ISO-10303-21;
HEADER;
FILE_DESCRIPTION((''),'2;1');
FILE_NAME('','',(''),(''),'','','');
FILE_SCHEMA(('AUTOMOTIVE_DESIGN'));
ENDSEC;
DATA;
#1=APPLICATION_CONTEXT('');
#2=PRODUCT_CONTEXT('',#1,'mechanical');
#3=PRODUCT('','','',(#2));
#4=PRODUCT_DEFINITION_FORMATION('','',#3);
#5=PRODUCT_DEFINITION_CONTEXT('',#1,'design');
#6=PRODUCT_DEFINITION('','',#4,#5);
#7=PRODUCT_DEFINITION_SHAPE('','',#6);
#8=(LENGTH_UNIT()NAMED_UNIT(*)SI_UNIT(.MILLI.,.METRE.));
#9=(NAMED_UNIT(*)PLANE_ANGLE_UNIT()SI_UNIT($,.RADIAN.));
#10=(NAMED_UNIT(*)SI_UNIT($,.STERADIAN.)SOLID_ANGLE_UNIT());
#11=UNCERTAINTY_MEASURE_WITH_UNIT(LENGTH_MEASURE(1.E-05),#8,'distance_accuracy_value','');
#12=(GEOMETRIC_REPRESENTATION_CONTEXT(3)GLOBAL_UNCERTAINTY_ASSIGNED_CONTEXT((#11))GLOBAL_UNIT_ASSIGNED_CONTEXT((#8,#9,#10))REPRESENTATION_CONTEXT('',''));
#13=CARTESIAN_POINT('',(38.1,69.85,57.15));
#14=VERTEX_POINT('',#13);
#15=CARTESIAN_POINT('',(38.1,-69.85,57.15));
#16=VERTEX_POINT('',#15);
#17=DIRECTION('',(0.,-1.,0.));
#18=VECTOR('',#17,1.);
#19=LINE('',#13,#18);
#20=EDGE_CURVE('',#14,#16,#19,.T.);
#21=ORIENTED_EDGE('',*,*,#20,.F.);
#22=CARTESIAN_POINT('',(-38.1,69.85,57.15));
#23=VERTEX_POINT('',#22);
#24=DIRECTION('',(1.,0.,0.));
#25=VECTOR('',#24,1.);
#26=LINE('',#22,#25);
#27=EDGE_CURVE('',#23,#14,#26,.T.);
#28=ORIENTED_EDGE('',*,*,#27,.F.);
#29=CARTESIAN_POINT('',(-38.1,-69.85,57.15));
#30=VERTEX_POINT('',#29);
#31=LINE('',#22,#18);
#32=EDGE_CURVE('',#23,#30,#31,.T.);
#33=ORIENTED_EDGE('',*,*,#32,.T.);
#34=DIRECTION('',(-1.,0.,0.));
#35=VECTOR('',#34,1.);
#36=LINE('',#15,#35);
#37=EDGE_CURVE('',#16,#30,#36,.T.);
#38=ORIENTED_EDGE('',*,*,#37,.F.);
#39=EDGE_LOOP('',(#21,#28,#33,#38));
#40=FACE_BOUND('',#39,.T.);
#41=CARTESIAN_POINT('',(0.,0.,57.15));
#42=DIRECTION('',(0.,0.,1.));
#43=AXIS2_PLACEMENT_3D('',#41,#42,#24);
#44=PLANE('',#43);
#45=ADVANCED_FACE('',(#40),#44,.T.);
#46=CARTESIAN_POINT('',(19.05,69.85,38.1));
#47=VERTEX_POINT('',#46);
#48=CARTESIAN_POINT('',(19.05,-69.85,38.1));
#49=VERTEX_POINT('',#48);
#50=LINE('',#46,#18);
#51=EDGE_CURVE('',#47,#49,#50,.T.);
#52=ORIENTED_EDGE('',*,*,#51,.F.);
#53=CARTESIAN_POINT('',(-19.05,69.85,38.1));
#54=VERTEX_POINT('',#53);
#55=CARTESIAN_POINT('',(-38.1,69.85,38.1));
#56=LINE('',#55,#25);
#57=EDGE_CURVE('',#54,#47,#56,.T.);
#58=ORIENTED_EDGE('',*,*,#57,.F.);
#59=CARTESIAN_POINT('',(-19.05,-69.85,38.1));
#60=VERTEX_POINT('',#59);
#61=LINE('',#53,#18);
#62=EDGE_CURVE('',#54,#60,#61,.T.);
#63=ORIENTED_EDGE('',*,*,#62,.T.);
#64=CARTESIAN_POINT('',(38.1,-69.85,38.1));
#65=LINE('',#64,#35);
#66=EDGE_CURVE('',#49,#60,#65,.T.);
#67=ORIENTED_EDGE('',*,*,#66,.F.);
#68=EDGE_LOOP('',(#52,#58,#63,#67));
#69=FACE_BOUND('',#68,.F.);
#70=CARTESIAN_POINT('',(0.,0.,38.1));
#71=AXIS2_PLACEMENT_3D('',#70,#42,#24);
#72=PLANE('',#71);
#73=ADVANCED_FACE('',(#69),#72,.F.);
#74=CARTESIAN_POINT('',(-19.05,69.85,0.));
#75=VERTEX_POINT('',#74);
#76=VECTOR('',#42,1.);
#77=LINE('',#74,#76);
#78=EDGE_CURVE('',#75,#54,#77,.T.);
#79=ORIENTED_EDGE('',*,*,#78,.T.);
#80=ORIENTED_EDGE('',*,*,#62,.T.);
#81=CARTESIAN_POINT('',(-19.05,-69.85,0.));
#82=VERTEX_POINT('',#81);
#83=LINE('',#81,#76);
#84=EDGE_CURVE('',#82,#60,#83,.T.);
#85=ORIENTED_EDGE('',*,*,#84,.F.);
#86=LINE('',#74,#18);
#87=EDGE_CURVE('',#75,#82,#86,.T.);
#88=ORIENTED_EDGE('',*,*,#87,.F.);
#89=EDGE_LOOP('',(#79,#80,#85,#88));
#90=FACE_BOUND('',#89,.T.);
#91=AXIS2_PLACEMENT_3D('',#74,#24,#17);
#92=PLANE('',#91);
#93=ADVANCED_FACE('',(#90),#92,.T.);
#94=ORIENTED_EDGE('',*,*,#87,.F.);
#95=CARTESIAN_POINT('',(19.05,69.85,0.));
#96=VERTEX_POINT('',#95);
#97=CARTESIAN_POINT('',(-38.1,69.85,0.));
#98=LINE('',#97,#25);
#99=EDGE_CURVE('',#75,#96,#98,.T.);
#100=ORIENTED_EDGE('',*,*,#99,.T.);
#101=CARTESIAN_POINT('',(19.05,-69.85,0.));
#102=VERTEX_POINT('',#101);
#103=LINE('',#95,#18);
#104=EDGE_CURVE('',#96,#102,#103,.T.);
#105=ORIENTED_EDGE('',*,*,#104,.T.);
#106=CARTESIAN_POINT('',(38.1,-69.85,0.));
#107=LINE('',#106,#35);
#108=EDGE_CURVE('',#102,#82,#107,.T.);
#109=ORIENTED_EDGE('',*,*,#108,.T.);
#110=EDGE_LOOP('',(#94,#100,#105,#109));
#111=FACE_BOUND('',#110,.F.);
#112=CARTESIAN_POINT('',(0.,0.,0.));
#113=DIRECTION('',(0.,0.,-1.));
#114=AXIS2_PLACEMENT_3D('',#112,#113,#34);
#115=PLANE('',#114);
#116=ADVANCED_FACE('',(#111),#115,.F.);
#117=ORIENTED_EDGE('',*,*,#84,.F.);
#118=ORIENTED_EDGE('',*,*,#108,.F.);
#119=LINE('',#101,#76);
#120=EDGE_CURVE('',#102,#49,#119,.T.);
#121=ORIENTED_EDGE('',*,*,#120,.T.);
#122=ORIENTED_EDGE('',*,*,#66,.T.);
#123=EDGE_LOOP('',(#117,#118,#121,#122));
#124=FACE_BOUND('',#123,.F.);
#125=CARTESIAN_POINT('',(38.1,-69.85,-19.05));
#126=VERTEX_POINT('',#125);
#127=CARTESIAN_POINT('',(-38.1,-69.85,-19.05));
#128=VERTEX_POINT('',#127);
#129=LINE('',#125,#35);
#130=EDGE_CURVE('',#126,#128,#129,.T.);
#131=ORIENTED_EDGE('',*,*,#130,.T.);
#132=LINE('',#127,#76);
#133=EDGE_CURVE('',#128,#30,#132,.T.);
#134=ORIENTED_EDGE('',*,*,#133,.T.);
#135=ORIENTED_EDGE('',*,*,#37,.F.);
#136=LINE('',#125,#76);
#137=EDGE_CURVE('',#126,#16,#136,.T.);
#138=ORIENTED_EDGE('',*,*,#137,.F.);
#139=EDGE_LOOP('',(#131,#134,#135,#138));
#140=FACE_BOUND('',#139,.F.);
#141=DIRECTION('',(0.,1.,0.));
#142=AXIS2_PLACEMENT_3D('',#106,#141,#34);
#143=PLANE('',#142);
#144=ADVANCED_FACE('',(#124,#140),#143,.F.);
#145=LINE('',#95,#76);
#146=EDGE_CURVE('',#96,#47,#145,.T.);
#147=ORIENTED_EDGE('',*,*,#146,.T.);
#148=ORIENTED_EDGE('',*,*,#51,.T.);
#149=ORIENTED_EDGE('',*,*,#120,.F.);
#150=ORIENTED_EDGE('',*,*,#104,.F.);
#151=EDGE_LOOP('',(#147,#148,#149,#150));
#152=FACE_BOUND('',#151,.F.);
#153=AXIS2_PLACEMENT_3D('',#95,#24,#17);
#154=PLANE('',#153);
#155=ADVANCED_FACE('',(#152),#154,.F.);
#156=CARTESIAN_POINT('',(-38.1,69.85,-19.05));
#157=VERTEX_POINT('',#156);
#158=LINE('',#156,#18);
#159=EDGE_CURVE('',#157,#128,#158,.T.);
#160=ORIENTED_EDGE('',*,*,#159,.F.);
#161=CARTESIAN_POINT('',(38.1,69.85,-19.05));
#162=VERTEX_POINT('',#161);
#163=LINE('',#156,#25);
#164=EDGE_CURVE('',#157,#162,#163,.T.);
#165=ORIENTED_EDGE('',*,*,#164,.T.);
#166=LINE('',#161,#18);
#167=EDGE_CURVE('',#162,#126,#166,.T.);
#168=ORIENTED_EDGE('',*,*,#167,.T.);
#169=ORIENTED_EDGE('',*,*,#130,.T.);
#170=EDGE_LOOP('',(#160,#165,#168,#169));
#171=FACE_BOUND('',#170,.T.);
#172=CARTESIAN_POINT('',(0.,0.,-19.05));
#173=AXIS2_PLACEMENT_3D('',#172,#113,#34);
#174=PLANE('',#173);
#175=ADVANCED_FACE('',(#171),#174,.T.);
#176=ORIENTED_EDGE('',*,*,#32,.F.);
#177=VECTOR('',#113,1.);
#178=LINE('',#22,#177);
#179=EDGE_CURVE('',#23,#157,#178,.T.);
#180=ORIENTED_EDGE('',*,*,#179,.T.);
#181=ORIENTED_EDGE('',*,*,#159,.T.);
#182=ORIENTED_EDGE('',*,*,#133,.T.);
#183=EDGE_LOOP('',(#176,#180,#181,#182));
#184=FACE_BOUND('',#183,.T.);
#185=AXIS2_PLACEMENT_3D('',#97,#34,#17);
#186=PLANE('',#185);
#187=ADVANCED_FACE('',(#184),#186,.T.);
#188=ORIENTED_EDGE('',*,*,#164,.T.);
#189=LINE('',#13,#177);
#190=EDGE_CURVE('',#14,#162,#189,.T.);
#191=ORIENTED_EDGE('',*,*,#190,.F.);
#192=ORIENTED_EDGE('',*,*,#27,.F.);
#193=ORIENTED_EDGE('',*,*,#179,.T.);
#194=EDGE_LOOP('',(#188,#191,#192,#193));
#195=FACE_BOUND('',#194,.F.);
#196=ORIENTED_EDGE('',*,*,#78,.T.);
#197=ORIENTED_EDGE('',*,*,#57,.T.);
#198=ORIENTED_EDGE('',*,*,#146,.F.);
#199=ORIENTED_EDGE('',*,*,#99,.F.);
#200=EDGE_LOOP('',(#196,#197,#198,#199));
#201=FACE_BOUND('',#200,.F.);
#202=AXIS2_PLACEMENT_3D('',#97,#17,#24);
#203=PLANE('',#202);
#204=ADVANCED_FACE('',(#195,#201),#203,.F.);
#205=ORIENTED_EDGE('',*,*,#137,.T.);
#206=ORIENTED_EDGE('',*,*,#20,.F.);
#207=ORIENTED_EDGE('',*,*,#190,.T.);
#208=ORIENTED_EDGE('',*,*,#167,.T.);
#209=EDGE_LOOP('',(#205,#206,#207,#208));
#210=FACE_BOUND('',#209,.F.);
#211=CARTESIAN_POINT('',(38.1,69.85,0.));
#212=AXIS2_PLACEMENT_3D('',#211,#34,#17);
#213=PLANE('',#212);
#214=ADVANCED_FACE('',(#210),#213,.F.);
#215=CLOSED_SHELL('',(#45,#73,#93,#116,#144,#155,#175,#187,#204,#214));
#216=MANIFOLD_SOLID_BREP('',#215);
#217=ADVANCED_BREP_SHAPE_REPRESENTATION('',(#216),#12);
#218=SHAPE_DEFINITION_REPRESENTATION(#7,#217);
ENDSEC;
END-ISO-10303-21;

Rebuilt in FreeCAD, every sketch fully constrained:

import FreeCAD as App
import Part
import Sketcher
from FreeCAD import Vector
Q = App.Units.Quantity


def add_polygon(sketch, points):
    """Adds a closed chain of lines whose ends are joined by coincident constraints."""
    first, n = sketch.GeometryCount, len(points)
    for a, b in zip(points, points[1:] + points[:1]):
        sketch.addGeometry(Part.LineSegment(App.Vector(*a, 0), App.Vector(*b, 0)), False)
    for i in range(n):
        sketch.addConstraint(Sketcher.Constraint("Coincident", first + i, 2, first + (i + 1) % n, 1))

doc = App.newDocument("Part")
body = doc.addObject("PartDesign::Body", "Body")
body.AllowCompound = True

# Sketch on XY plane
sketch1 = body.newObject("Sketcher::SketchObject", "Sketch")
sketch1.AttachmentSupport = (doc.getObject("XY_Plane"), [""])
sketch1.MapMode = "FlatFace"
add_polygon(sketch1, [(-38, 70), (-38, -70), (-19, -70), (-19, 70)])  # lines 0-3
add_polygon(sketch1, [(19, 70), (19, -70), (38, -70), (38, 70)])  # lines 4-7
sketch1.addConstraint([
    Sketcher.Constraint("Vertical", 0),
    Sketcher.Constraint("Horizontal", 1),
    Sketcher.Constraint("Vertical", 2),
    Sketcher.Constraint("Horizontal", 3),
    Sketcher.Constraint("Vertical", 4),
    Sketcher.Constraint("Horizontal", 5),
    Sketcher.Constraint("Vertical", 6),
    Sketcher.Constraint("Horizontal", 7),
    Sketcher.Constraint("Symmetric", 2, 2, 4, 2, -1, 1),
    Sketcher.Constraint("Symmetric", 0, 2, 6, 2, -1, 1),
    Sketcher.Constraint("Horizontal", 1, 2, 4, 2),
    Sketcher.Constraint("DistanceY", 0, 2, 0, 1, Q("5.5 in")),
    Sketcher.Constraint("DistanceX", 0, 2, 5, 2, Q("3 in")),
    Sketcher.Constraint("DistanceX", 1, 2, 4, 2, Q("1.5 in")),
])
pad1 = body.newObject("PartDesign::Pad", "Pad")
pad1.Profile = sketch1
pad1.Length = Q("1.5 in")

# Sketch on XY plane
sketch2 = body.newObject("Sketcher::SketchObject", "Sketch001")
sketch2.AttachmentSupport = (doc.getObject("XY_Plane"), [""])
sketch2.MapMode = "FlatFace"
sketch2.AttachmentOffset = App.Placement(Vector(0, 0, 1.5 * 25.4), App.Rotation())
add_polygon(sketch2, [(38, 70), (-38, 70), (-38, -70), (38, -70)])  # lines 0-3
sketch2.addConstraint([
    Sketcher.Constraint("Horizontal", 0),
    Sketcher.Constraint("Vertical", 1),
    Sketcher.Constraint("Horizontal", 2),
    Sketcher.Constraint("Vertical", 3),
    Sketcher.Constraint("Symmetric", 0, 2, 2, 2, -1, 1),
    Sketcher.Constraint("DistanceX", 0, 2, 0, 1, Q("3 in")),
    Sketcher.Constraint("DistanceY", 1, 2, 1, 1, Q("5.5 in")),
])
pad2 = body.newObject("PartDesign::Pad", "Pad001")
pad2.Profile = sketch2
pad2.Length = Q("0.75 in")

# Sketch on XY plane
sketch3 = body.newObject("Sketcher::SketchObject", "Sketch002")
sketch3.AttachmentSupport = (doc.getObject("XY_Plane"), [""])
sketch3.MapMode = "FlatFace"
add_polygon(sketch3, [(-38, -70), (-38, 70), (38, 70), (38, -70)])  # lines 0-3
sketch3.addConstraint([
    Sketcher.Constraint("Vertical", 0),
    Sketcher.Constraint("Horizontal", 1),
    Sketcher.Constraint("Vertical", 2),
    Sketcher.Constraint("Horizontal", 3),
    Sketcher.Constraint("Symmetric", 0, 2, 2, 2, -1, 1),
    Sketcher.Constraint("DistanceX", 1, 1, 1, 2, Q("3 in")),
    Sketcher.Constraint("DistanceY", 0, 1, 0, 2, Q("5.5 in")),
])
pad3 = body.newObject("PartDesign::Pad", "Pad002")
pad3.Profile = sketch3
pad3.Length = Q("0.75 in")
pad3.Reversed = True

doc.recompute()
